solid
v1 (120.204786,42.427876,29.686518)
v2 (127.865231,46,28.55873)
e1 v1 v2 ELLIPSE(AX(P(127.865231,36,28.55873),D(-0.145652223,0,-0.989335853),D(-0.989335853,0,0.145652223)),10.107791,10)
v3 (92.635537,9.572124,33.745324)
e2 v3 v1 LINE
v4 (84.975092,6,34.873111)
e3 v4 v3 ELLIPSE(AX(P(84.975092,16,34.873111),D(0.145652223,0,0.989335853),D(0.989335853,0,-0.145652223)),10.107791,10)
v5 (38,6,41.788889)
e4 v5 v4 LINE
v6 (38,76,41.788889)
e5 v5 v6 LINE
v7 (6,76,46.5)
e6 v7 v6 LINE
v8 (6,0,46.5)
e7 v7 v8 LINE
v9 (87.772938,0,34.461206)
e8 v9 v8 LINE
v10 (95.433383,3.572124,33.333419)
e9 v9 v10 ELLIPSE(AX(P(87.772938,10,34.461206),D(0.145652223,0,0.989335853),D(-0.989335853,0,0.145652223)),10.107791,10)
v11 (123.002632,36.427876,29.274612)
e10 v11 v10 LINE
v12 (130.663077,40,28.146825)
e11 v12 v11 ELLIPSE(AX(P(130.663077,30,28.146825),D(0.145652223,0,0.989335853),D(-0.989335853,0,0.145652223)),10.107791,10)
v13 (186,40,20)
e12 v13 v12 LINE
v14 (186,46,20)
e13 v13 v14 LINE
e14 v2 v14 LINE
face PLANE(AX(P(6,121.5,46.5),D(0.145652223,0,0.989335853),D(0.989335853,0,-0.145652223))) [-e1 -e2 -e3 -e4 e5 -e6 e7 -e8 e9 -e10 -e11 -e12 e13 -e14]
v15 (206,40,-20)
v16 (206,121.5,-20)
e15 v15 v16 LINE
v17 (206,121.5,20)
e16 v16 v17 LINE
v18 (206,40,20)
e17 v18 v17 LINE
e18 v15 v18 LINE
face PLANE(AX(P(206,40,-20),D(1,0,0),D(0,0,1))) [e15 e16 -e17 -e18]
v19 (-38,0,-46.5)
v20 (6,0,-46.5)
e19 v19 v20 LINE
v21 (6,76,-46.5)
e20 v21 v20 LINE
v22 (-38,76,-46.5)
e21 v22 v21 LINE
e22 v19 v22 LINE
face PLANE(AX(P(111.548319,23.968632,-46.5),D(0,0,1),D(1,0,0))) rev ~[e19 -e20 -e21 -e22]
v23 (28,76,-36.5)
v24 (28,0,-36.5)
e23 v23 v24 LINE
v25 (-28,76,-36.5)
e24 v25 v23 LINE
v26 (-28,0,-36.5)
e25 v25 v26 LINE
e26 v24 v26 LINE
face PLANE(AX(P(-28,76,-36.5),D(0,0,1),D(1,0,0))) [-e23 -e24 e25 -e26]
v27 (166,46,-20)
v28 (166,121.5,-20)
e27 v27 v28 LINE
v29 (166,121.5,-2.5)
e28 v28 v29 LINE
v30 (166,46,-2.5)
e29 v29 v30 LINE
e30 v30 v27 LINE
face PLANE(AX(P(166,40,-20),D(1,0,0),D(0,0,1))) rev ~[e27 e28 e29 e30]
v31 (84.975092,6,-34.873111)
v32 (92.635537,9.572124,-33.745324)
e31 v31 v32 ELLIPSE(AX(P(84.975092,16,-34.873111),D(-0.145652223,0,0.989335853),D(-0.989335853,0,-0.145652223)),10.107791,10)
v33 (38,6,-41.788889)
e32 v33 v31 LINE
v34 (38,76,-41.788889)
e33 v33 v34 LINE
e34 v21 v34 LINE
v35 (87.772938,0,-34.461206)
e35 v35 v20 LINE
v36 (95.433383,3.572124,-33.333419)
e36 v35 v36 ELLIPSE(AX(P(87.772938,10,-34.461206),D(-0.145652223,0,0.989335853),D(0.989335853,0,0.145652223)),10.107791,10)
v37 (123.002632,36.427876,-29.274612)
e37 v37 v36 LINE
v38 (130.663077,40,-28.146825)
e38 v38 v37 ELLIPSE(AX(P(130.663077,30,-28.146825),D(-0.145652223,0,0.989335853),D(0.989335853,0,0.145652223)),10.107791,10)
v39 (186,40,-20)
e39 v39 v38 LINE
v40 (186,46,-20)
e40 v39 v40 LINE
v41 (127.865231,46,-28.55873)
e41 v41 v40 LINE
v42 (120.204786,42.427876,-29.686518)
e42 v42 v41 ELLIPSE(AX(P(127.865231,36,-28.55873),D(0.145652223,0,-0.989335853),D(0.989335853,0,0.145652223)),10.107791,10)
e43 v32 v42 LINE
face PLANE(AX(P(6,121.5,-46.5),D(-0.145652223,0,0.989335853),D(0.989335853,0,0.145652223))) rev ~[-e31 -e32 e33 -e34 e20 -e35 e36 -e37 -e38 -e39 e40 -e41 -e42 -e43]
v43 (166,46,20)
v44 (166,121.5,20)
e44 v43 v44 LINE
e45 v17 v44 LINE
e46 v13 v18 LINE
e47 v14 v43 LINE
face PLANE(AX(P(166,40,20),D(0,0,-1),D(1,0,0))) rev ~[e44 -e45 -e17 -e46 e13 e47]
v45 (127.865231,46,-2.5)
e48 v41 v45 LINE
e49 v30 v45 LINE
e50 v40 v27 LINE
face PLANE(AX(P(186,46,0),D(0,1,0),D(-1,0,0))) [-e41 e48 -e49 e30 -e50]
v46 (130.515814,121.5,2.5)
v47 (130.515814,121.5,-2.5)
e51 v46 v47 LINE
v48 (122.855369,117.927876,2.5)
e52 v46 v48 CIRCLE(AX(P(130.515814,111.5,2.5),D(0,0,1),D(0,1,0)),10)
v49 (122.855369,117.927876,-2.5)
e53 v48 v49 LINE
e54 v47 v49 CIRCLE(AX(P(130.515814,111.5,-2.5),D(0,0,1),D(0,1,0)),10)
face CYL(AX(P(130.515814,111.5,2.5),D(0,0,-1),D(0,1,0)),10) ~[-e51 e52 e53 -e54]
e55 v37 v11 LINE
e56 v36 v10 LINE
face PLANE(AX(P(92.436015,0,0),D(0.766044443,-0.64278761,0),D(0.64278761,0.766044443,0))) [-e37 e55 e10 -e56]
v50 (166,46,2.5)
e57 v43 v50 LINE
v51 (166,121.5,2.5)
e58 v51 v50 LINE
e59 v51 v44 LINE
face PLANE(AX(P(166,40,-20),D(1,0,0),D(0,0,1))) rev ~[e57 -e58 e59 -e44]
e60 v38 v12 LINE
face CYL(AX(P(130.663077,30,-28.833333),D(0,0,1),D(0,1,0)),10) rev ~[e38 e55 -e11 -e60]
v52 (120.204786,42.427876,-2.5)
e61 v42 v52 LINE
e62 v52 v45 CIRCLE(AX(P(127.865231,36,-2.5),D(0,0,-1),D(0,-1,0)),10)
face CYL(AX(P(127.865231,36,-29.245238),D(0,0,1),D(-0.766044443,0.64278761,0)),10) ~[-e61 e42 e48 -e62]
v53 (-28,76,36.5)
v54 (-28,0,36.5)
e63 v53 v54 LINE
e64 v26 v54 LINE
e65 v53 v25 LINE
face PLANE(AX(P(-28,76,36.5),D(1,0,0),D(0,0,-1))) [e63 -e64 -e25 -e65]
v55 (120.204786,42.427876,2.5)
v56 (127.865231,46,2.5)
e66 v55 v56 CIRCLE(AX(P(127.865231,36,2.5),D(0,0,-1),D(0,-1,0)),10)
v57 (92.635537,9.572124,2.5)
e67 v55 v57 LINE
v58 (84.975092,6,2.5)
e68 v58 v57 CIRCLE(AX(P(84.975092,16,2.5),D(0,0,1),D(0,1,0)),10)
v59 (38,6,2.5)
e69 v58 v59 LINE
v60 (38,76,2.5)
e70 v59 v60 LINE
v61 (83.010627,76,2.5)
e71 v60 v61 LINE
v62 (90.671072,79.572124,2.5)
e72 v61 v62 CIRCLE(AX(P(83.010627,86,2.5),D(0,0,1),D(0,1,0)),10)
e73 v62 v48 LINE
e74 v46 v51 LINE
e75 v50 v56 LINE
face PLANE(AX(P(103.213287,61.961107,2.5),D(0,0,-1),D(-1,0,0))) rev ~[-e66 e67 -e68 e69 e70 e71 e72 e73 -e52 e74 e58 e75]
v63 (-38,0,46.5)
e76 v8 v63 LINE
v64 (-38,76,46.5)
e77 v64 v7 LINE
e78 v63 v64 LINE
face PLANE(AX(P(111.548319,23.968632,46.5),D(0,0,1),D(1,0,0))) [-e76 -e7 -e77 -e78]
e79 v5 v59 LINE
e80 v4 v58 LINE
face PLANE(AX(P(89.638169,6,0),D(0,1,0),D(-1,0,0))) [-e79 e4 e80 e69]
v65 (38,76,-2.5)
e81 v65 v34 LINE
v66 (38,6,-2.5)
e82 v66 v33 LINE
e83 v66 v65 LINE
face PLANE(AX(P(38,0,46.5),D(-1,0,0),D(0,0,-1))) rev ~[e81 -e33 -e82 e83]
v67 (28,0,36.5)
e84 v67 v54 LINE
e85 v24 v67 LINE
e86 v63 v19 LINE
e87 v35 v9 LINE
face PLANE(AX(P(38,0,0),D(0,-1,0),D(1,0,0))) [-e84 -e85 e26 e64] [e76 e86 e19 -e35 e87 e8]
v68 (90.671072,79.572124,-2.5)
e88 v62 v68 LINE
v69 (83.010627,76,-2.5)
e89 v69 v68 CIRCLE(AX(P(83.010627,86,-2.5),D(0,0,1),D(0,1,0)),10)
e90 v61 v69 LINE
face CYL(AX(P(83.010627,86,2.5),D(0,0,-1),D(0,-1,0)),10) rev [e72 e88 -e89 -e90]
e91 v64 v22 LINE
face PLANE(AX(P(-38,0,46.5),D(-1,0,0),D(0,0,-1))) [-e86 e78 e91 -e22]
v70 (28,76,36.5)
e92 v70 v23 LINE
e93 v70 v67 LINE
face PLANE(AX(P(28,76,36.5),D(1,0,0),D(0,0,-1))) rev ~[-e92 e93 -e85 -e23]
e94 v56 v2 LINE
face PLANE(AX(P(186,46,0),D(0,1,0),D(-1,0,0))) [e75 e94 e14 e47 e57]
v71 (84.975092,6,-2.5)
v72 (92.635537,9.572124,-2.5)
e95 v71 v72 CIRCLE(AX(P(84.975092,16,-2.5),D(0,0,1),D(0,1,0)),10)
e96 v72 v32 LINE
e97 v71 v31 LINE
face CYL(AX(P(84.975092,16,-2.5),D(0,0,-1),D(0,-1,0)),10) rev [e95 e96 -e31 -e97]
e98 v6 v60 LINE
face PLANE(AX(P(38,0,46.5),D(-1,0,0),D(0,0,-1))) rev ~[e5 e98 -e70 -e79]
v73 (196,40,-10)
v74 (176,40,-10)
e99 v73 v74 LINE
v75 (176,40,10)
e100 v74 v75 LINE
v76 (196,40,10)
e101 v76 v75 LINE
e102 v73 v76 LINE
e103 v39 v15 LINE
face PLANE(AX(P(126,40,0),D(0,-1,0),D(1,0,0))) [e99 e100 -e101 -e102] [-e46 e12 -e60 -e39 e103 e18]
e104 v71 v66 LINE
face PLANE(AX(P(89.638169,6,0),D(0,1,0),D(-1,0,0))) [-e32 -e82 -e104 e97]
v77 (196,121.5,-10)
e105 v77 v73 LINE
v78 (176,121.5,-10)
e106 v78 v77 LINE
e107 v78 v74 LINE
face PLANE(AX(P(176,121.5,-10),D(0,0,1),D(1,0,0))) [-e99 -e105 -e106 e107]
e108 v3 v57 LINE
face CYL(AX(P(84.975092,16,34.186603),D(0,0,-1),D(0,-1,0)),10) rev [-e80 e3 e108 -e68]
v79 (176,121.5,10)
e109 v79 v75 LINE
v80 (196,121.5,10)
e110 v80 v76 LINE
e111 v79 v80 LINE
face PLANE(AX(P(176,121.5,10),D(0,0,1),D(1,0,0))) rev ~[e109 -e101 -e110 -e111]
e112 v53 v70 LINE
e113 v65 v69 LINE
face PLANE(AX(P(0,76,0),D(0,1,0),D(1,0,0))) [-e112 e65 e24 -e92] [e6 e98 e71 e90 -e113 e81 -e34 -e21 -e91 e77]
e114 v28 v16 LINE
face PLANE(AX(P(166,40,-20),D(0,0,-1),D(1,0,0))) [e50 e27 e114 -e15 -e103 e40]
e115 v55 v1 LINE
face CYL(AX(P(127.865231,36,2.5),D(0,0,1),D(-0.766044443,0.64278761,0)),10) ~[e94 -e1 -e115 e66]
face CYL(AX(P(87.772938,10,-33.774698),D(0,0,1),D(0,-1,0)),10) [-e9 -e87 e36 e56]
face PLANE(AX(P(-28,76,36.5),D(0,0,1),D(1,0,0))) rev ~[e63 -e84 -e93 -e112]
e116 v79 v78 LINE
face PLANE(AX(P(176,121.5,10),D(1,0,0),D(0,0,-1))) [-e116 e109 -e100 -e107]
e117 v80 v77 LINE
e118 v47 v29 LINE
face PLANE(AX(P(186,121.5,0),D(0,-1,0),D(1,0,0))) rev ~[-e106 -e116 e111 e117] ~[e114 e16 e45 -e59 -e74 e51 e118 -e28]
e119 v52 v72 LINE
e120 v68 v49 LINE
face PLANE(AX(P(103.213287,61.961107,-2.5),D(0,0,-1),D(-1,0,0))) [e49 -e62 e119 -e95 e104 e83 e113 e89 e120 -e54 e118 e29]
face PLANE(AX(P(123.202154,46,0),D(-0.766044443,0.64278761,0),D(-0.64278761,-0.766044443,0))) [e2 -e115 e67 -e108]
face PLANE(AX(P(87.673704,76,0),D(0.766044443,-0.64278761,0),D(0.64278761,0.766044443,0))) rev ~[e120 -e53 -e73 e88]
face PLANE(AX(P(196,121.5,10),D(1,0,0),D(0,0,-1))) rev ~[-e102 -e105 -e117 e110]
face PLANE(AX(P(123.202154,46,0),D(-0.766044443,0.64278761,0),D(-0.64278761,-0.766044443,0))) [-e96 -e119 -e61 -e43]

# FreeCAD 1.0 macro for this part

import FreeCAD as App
import Part
import Sketcher
Q = App.Units.Quantity


def edges_at(feature, points):
    """Names of the edges that pass closest to the given points."""
    edges = feature.Shape.Edges
    near = lambda p: min(range(len(edges)), key=lambda i: edges[i].distToShape(Part.Vertex(*p))[0])
    return sorted({f"Edge{near(p) + 1}" for p in points})


def add_polygon(sketch, points):
    """Adds a closed chain of lines whose ends are joined by coincident constraints."""
    first, n = sketch.GeometryCount, len(points)
    for a, b in zip(points, points[1:] + points[:1]):
        sketch.addGeometry(Part.LineSegment(App.Vector(*a, 0), App.Vector(*b, 0)), False)
    for i in range(n):
        sketch.addConstraint(Sketcher.Constraint("Coincident", first + i, 2, first + (i + 1) % n, 1))

doc = App.newDocument("Part")
body = doc.addObject("PartDesign::Body", "Body")

# Sketch on XZ plane
sketch1 = body.newObject("Sketcher::SketchObject", "Sketch")
sketch1.AttachmentSupport = (doc.getObject("XZ_Plane"), [""])
sketch1.MapMode = "FlatFace"
add_polygon(sketch1, [(-38, -46.5), (-38, 46.5), (38, 46.5), (38, -46.5)])  # lines 0-3
sketch1.addConstraint([
    Sketcher.Constraint("Vertical", 0),
    Sketcher.Constraint("Horizontal", 1),
    Sketcher.Constraint("Vertical", 2),
    Sketcher.Constraint("Horizontal", 3),
    Sketcher.Constraint("Symmetric", 0, 2, 2, 2, -1, 1),
    Sketcher.Constraint("DistanceX", 1, 1, 1, 2, Q("76 mm")),
    Sketcher.Constraint("DistanceY", 0, 1, 0, 2, Q("93 mm")),
])
pad1 = body.newObject("PartDesign::Pad", "Pad")
pad1.Profile = sketch1
pad1.Length = 76
pad1.Reversed = True

# Sketch on XY plane
sketch2 = body.newObject("Sketcher::SketchObject", "Sketch001")
sketch2.AttachmentSupport = (doc.getObject("XY_Plane"), [""])
sketch2.MapMode = "FlatFace"
add_polygon(sketch2, [(38, 0), (92.436015, 0), (126, 40), (186, 40), (186, 46), (123.202154, 46), (89.638169, 6), (38, 6)])  # lines 0-7
sketch2.addConstraint([
    Sketcher.Constraint("Horizontal", 0),
    Sketcher.Constraint("Horizontal", 2),
    Sketcher.Constraint("Vertical", 3),
    Sketcher.Constraint("Horizontal", 4),
    Sketcher.Constraint("Horizontal", 6),
    Sketcher.Constraint("Vertical", 7),
    Sketcher.Constraint("PointOnObject", 0, 2, -1),
    Sketcher.Constraint("Parallel", 1, 5),
    Sketcher.Constraint("Equal", 3, 7),
    Sketcher.Constraint("DistanceX", 2, 1, 2, 2, Q("60 mm")),
    Sketcher.Constraint("DistanceY", 3, 1, 3, 2, Q("6 mm")),
    Sketcher.Constraint("Angle", 1, Q("50 deg")),
    Sketcher.Constraint("DistanceX", -1, 1, 1, 2, Q("126 mm")),
    Sketcher.Constraint("DistanceY", -1, 1, 1, 2, Q("40 mm")),
    Sketcher.Constraint("DistanceX", -1, 1, 6, 2, Q("38 mm")),
    Sketcher.Constraint("DistanceX", 6, 2, 6, 1, Q("51.638169 mm")),
])
pad2 = body.newObject("PartDesign::Pad", "Pad001")
pad2.Profile = sketch2
pad2.Length = 93
pad2.Midplane = True

# Sketch on XZ plane
sketch3 = body.newObject("Sketcher::SketchObject", "Sketch002")
sketch3.AttachmentSupport = (doc.getObject("XZ_Plane"), [""])
sketch3.MapMode = "FlatFace"
sketch3.AttachmentOffset = App.Placement(App.Vector(0, 0, -40), App.Rotation())
add_polygon(sketch3, [(166, 20), (166, -20), (206, -20), (206, 20)])  # lines 0-3
sketch3.addConstraint([
    Sketcher.Constraint("Vertical", 0),
    Sketcher.Constraint("Horizontal", 1),
    Sketcher.Constraint("Vertical", 2),
    Sketcher.Constraint("Horizontal", 3),
    Sketcher.Constraint("Equal", 3, 0),
    Sketcher.Constraint("DistanceX", 1, 1, 1, 2, Q("40 mm")),
    Sketcher.Constraint("DistanceX", -1, 1, 0, 2, Q("166 mm")),
    Sketcher.Constraint("DistanceY", 0, 2, -1, 1, Q("20 mm")),
])
pad3 = body.newObject("PartDesign::Pad", "Pad002")
pad3.Profile = sketch3
pad3.Length = 81.5
pad3.Reversed = True

# Sketch on XY plane
sketch4 = body.newObject("Sketcher::SketchObject", "Sketch003")
sketch4.AttachmentSupport = (doc.getObject("XY_Plane"), [""])
sketch4.MapMode = "FlatFace"
add_polygon(sketch4, [(87.673704, 76), (38, 76), (38, 6), (89.638169, 6), (123.202154, 46), (166, 46), (166, 121.5), (125.852737, 121.5)])  # lines 0-7
sketch4.addConstraint([
    Sketcher.Constraint("Horizontal", 0),
    Sketcher.Constraint("Vertical", 1),
    Sketcher.Constraint("Horizontal", 2),
    Sketcher.Constraint("Horizontal", 4),
    Sketcher.Constraint("Vertical", 5),
    Sketcher.Constraint("Horizontal", 6),
    Sketcher.Constraint("Parallel", 3, 7),
    Sketcher.Constraint("DistanceY", 1, 2, 1, 1, Q("70 mm")),
    Sketcher.Constraint("Angle", 3, Q("50 deg")),
    Sketcher.Constraint("DistanceY", 5, 1, 5, 2, Q("75.5 mm")),
    Sketcher.Constraint("DistanceX", -1, 1, 0, 2, Q("38 mm")),
    Sketcher.Constraint("DistanceY", -1, 1, 0, 2, Q("76 mm")),
    Sketcher.Constraint("DistanceY", -1, 1, 3, 2, Q("46 mm")),
    Sketcher.Constraint("DistanceX", -1, 1, 4, 2, Q("166 mm")),
    Sketcher.Constraint("DistanceX", 2, 1, 2, 2, Q("51.638169 mm")),
    Sketcher.Constraint("DistanceX", 0, 2, 0, 1, Q("49.673704 mm")),
])
pad4 = body.newObject("PartDesign::Pad", "Pad003")
pad4.Profile = sketch4
pad4.Length = 5
pad4.Midplane = True

# Sketch on XZ plane
sketch5 = body.newObject("Sketcher::SketchObject", "Sketch004")
sketch5.AttachmentSupport = (doc.getObject("XZ_Plane"), [""])
sketch5.MapMode = "FlatFace"
sketch5.AttachmentOffset = App.Placement(App.Vector(0, 0, -121.5), App.Rotation())
add_polygon(sketch5, [(176, -10), (176, 10), (196, 10), (196, -10)])  # lines 0-3
sketch5.addConstraint([
    Sketcher.Constraint("Vertical", 0),
    Sketcher.Constraint("Horizontal", 1),
    Sketcher.Constraint("Vertical", 2),
    Sketcher.Constraint("Horizontal", 3),
    Sketcher.Constraint("Equal", 3, 0),
    Sketcher.Constraint("DistanceX", 1, 1, 1, 2, Q("20 mm")),
    Sketcher.Constraint("DistanceX", -1, 1, 0, 2, Q("176 mm")),
    Sketcher.Constraint("DistanceY", -1, 1, 0, 2, Q("10 mm")),
])
pocket1 = body.newObject("PartDesign::Pocket", "Pocket")
pocket1.Profile = sketch5
pocket1.Type = "ThroughAll"
pocket1.Reversed = True

# Sketch on XZ plane
sketch6 = body.newObject("Sketcher::SketchObject", "Sketch005")
sketch6.AttachmentSupport = (doc.getObject("XZ_Plane"), [""])
sketch6.MapMode = "FlatFace"
sketch6.AttachmentOffset = App.Placement(App.Vector(0, 0, -76), App.Rotation())
add_polygon(sketch6, [(-28, -36.5), (-28, 36.5), (28, 36.5), (28, -36.5)])  # lines 0-3
sketch6.addConstraint([
    Sketcher.Constraint("Vertical", 0),
    Sketcher.Constraint("Horizontal", 1),
    Sketcher.Constraint("Vertical", 2),
    Sketcher.Constraint("Horizontal", 3),
    Sketcher.Constraint("Symmetric", 0, 2, 2, 2, -1, 1),
    Sketcher.Constraint("DistanceX", 1, 1, 1, 2, Q("56 mm")),
    Sketcher.Constraint("DistanceY", 0, 1, 0, 2, Q("73 mm")),
])
pocket2 = body.newObject("PartDesign::Pocket", "Pocket001")
pocket2.Profile = sketch6
pocket2.Type = "ThroughAll"
pocket2.Reversed = True

# Sketch on XZ plane
sketch7 = body.newObject("Sketcher::SketchObject", "Sketch006")
sketch7.AttachmentSupport = (doc.getObject("XZ_Plane"), [""])
sketch7.MapMode = "FlatFace"
sketch7.AttachmentOffset = App.Placement(App.Vector(0, 0, -121.5), App.Rotation())
add_polygon(sketch7, [(6, -46.5), (186, -20), (186, -46.5)])  # lines 0-2
add_polygon(sketch7, [(186, 20), (6, 46.5), (186, 46.5)])  # lines 3-5
sketch7.addConstraint([
    Sketcher.Constraint("Vertical", 1),
    Sketcher.Constraint("Horizontal", 2),
    Sketcher.Constraint("Horizontal", 4),
    Sketcher.Constraint("Vertical", 5),
    Sketcher.Constraint("Symmetric", 2, 2, 3, 2, -1),
    Sketcher.Constraint("Symmetric", 0, 2, 5, 2, -1),
    Sketcher.Constraint("DistanceX", 2, 2, 2, 1, Q("180 mm")),
    Sketcher.Constraint("DistanceY", 1, 2, 1, 1, Q("26.5 mm")),
    Sketcher.Constraint("DistanceX", -1, 1, 0, 2, Q("186 mm")),
    Sketcher.Constraint("DistanceY", 0, 2, -1, 1, Q("20 mm")),
])
pocket3 = body.newObject("PartDesign::Pocket", "Pocket002")
pocket3.Profile = sketch7
pocket3.Type = "ThroughAll"
pocket3.Reversed = True
doc.recompute()

fillet = body.newObject("PartDesign::Fillet", "Fillet")
fillet.Base = (pocket3, edges_at(pocket3, [
    (126, 40, 0),
    (92.436, 0, 0),
    (89.638, 6, 18.343),
    (123.202, 46, 15.873),
    (89.638, 6, -18.343),
    (123.202, 46, -15.873),
    (125.853, 121.5, 0),
    (87.674, 76, 0),
]))
fillet.Radius = 10

doc.recompute()
